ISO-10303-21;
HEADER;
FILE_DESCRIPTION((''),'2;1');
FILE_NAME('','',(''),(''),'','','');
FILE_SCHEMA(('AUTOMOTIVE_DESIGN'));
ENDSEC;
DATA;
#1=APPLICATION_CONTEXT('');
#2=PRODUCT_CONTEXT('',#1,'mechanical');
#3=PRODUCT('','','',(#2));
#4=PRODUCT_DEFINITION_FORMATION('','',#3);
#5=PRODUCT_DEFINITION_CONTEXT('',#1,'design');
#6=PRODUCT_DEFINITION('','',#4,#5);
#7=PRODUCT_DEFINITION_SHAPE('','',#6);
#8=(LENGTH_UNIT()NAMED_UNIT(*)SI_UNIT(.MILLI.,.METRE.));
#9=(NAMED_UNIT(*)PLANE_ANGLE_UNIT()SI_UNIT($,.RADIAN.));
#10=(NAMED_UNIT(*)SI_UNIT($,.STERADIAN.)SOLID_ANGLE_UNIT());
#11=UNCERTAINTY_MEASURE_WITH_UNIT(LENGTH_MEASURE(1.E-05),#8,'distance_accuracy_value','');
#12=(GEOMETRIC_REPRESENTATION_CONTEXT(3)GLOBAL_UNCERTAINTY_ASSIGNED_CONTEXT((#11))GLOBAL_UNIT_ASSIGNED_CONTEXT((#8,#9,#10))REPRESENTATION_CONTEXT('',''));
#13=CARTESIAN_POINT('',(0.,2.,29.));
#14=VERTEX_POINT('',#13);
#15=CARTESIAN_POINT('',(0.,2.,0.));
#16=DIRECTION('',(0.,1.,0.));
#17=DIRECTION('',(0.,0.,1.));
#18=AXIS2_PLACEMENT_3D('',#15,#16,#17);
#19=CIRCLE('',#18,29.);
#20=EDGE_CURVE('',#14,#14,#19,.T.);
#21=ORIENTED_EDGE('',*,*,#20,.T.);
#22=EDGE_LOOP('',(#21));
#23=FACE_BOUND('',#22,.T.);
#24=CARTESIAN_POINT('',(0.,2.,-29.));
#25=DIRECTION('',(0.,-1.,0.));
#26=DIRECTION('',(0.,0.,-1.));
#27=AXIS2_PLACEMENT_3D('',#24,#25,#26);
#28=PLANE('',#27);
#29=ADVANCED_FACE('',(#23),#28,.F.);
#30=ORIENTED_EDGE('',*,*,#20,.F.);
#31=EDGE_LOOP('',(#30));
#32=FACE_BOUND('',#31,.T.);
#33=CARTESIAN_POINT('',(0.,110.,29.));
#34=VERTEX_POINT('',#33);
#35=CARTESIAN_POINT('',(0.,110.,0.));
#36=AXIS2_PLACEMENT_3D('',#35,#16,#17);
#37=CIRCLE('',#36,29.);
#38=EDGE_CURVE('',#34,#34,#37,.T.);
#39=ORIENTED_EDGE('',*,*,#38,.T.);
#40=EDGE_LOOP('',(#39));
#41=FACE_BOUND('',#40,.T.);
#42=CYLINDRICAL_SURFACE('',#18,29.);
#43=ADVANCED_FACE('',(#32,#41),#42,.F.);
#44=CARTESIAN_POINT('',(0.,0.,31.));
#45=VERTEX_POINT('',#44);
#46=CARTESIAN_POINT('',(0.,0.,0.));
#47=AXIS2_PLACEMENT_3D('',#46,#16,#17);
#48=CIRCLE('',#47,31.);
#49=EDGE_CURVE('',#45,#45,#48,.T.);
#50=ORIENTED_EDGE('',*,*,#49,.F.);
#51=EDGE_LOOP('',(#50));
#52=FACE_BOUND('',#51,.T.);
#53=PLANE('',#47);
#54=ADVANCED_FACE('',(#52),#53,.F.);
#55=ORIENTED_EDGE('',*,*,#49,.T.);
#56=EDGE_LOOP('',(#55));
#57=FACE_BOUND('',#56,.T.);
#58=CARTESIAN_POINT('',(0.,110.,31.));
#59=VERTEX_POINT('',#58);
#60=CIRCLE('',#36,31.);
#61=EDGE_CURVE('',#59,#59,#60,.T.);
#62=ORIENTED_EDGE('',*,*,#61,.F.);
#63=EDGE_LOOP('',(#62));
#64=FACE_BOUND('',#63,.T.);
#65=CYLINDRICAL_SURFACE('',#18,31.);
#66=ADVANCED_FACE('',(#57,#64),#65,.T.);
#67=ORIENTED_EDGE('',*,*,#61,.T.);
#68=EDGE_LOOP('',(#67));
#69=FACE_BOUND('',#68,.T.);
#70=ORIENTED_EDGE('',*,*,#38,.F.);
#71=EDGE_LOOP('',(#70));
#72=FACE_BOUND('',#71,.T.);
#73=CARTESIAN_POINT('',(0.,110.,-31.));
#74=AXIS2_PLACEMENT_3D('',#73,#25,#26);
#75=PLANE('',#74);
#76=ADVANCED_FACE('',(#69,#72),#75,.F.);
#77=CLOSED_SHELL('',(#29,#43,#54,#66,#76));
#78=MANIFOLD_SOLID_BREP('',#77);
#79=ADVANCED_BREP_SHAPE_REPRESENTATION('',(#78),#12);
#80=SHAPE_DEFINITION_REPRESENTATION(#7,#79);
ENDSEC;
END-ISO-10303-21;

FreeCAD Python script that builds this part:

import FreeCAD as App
import Part
import Sketcher

doc = App.newDocument("Part")
body = doc.addObject("PartDesign::Body", "Body")

# Sketch on YZ plane
sketch1 = body.newObject("Sketcher::SketchObject", "Sketch")
sketch1.AttachmentSupport = (doc.getObject("YZ_Plane"), [""])
sketch1.MapMode = "FlatFace"
sketch1.addGeometry(Part.LineSegment(App.Vector(0, 0, 0), App.Vector(0, -31, 0)), False)
sketch1.addGeometry(Part.LineSegment(App.Vector(0, -31, 0), App.Vector(110, -31, 0)), False)
sketch1.addGeometry(Part.LineSegment(App.Vector(110, -31, 0), App.Vector(110, -29, 0)), False)
sketch1.addGeometry(Part.LineSegment(App.Vector(110, -29, 0), App.Vector(2, -29, 0)), False)
sketch1.addGeometry(Part.LineSegment(App.Vector(2, -29, 0), App.Vector(2, 0, 0)), False)
sketch1.addGeometry(Part.LineSegment(App.Vector(2, 0, 0), App.Vector(0, 0, 0)), False)
sketch1.addConstraint(Sketcher.Constraint("Coincident", 0, 2, 1, 1))
sketch1.addConstraint(Sketcher.Constraint("Coincident", 1, 2, 2, 1))
sketch1.addConstraint(Sketcher.Constraint("Coincident", 2, 2, 3, 1))
sketch1.addConstraint(Sketcher.Constraint("Coincident", 3, 2, 4, 1))
sketch1.addConstraint(Sketcher.Constraint("Coincident", 4, 2, 5, 1))
sketch1.addConstraint(Sketcher.Constraint("Coincident", 5, 2, 0, 1))
sketch1.addConstraint(Sketcher.Constraint("Vertical", 0))
sketch1.addConstraint(Sketcher.Constraint("Horizontal", 1))
sketch1.addConstraint(Sketcher.Constraint("Vertical", 2))
sketch1.addConstraint(Sketcher.Constraint("Horizontal", 3))
sketch1.addConstraint(Sketcher.Constraint("Vertical", 4))
sketch1.addConstraint(Sketcher.Constraint("Horizontal", 5))
sketch1.addConstraint(Sketcher.Constraint("Coincident", 5, 2, -1, 1))
sketch1.addConstraint(Sketcher.Constraint("Equal", 5, 2))
sketch1.addConstraint(Sketcher.Constraint("DistanceX", 1, 1, 1, 2, 110.0))
sketch1.addConstraint(Sketcher.Constraint("DistanceX", 3, 2, 3, 1, 108.0))
sketch1.addConstraint(Sketcher.Constraint("DistanceY", 0, 2, 0, 1, 31.0))
revolution = body.newObject("PartDesign::Revolution", "Revolution")
revolution.Profile = sketch1
revolution.ReferenceAxis = (sketch1, ["H_Axis"])
revolution.Angle = 360

doc.recompute()
